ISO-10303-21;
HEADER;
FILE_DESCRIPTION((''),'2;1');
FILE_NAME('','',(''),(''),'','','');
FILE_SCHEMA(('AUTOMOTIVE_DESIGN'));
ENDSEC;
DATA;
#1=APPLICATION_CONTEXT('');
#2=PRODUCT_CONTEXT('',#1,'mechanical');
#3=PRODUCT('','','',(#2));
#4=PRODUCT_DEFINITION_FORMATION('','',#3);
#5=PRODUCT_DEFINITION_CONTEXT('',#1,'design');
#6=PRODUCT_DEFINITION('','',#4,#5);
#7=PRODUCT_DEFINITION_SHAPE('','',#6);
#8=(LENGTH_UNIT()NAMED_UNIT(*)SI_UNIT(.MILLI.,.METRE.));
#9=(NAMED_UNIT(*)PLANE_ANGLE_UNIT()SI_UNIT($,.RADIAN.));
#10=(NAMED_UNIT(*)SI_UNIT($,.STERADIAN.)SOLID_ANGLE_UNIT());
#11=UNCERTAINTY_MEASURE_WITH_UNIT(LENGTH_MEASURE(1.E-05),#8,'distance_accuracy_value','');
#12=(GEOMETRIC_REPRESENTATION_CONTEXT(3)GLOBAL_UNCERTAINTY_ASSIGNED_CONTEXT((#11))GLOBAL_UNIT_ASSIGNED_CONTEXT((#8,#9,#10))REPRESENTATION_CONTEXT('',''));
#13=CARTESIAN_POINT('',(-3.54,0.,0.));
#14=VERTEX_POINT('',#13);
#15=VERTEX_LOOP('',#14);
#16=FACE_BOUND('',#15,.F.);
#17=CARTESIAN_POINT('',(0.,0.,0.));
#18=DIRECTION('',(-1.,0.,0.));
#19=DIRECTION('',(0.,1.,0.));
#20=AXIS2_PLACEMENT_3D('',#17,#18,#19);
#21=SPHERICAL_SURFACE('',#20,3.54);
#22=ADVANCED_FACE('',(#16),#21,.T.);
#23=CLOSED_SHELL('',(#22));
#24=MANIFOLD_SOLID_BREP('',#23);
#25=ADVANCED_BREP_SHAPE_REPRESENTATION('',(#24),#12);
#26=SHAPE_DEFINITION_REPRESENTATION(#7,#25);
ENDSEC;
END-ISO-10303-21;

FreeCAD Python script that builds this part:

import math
import FreeCAD as App
import Part
import Sketcher
from FreeCAD import Vector
Q = App.Units.Quantity

doc = App.newDocument("Part")
body = doc.addObject("PartDesign::Body", "Body")

# Sketch on XY plane
sketch1 = doc.addObject("Sketcher::SketchObject", "Sketch")
body.addObject(sketch1)
sketch1.AttachmentSupport = (doc.XY_Plane, [""])
sketch1.MapMode = "FlatFace"
sketch1.addGeometry([
    Part.LineSegment(Vector(-3.5, 0, 0), Vector(3.5, 0, 0)),
    Part.ArcOfCircle(Part.Circle(Vector(0, 0, 0), Vector(0, 0, 1), 3.5), math.radians(0), math.radians(180)),
], False)
sketch1.addConstraint([
    Sketcher.Constraint("Coincident", 0, 1, 1, 2),
    Sketcher.Constraint("Coincident", 1, 1, 0, 2),
    Sketcher.Constraint("Horizontal", 0),
    Sketcher.Constraint("Coincident", 1, 3, -1, 1),
    Sketcher.Constraint("PointOnObject", 0, 1, -1),
    Sketcher.Constraint("Radius", 1, Q("3.54 mm")),
])
revolution = doc.addObject("PartDesign::Revolution", "Revolution")
body.addObject(revolution)
revolution.Profile = sketch1
revolution.ReferenceAxis = (sketch1, ["H_Axis"])
revolution.Angle = 360

doc.recompute()
